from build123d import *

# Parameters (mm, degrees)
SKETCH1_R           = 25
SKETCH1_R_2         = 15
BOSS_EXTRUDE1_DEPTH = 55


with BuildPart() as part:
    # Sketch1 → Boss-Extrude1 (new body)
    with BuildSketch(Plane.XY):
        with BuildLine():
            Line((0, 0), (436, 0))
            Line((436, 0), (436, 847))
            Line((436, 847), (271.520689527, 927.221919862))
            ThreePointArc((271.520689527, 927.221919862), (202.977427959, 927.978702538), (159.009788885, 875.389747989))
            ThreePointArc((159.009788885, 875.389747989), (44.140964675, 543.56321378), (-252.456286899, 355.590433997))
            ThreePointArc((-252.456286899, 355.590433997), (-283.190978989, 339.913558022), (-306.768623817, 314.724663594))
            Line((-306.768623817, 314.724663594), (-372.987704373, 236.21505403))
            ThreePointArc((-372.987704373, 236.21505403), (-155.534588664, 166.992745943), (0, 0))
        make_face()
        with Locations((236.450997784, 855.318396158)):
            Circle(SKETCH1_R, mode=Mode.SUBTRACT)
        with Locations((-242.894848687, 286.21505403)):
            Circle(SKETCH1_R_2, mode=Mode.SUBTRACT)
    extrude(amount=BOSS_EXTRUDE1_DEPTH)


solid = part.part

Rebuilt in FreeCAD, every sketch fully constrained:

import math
import FreeCAD as App
import Part
import Sketcher
Q = App.Units.Quantity

doc = App.newDocument("Part")
params = doc.addObject("Spreadsheet::Sheet", "Params")
for row, (alias, value) in enumerate([
    ("sketch1_diameter", "30 mm"),
    ("sketch1_diameter2", "50 mm"),
    ("sketch1_radius", "80 mm"),
    ("sketch1_radius2", "532 mm"),
    ("sketch1_radius3", "100 mm"),
    ("pad1_length", "55 mm"),
], start=1):
    params.set(f"A{row}", alias)
    params.set(f"B{row}", "=" + value)
    params.setAlias(f"B{row}", alias)

body = doc.addObject("PartDesign::Body", "Body")

# Sketch on XY plane
sketch1 = body.newObject("Sketcher::SketchObject", "Sketch")
sketch1.AttachmentSupport = (doc.getObject("XY_Plane"), [""])
sketch1.MapMode = "FlatFace"
sketch1.addGeometry([
    Part.LineSegment(App.Vector(0, 0, 0), App.Vector(436, 0, 0)),  # 0
    Part.LineSegment(App.Vector(436, 0, 0), App.Vector(436, 847, 0)),  # 1
    Part.LineSegment(App.Vector(436, 847, 0), App.Vector(272, 927, 0)),  # 2
    Part.ArcOfCircle(Part.Circle(App.Vector(236, 855, 0), App.Vector(0, 0, 1), 80), math.radians(64), math.radians(165)),  # 3
    Part.ArcOfCircle(Part.Circle(App.Vector(-373, 874, 0), App.Vector(0, 0, 1), 532), math.radians(-77), math.radians(0)),  # 4
    Part.ArcOfCircle(Part.Circle(App.Vector(-223, 260, 0), App.Vector(0, 0, 1), 100), math.radians(107), math.radians(147)),  # 5
    Part.LineSegment(App.Vector(-307, 315, 0), App.Vector(-373, 236, 0)),  # 6
    Part.ArcOfCircle(Part.Circle(App.Vector(-396, -213, 0), App.Vector(0, 0, 1), 450), math.radians(28), math.radians(87)),  # 7
    Part.Circle(App.Vector(-243, 286, 0), App.Vector(0, 0, 1), 15),  # 8
    Part.Circle(App.Vector(236, 855, 0), App.Vector(0, 0, 1), 25),  # 9
], False)
sketch1.addConstraint([
    Sketcher.Constraint("Coincident", 0, 2, 1, 1),
    Sketcher.Constraint("Coincident", 1, 2, 2, 1),
    Sketcher.Constraint("Tangent", 2, 2, 3, 1),
    Sketcher.Constraint("Coincident", 3, 2, 4, 2),
    Sketcher.Constraint("Coincident", 4, 1, 5, 1),
    Sketcher.Constraint("Coincident", 5, 2, 6, 1),
    Sketcher.Constraint("Coincident", 6, 2, 7, 2),
    Sketcher.Constraint("Coincident", 7, 1, 0, 1),
    Sketcher.Constraint("Horizontal", 0),
    Sketcher.Constraint("Vertical", 1),
    Sketcher.Constraint("Coincident", 9, 3, 3, 3),
    Sketcher.Constraint("PointOnObject", 0, 2, -1),
    Sketcher.Constraint("Vertical", 4, 3, 6, 2),
    Sketcher.Constraint("Diameter", 8, Q("30 mm")),
    Sketcher.Constraint("Diameter", 9, Q("50 mm")),
    Sketcher.Constraint("Radius", 3, Q("80 mm")),
    Sketcher.Constraint("Radius", 4, Q("532 mm")),
    Sketcher.Constraint("Radius", 5, Q("100 mm")),
    Sketcher.Constraint("Radius", 7, Q("450 mm")),
    Sketcher.Constraint("DistanceX", 0, 1, 0, 2, Q("436 mm")),
    Sketcher.Constraint("DistanceY", 1, 1, 1, 2, Q("847 mm")),
    Sketcher.Constraint("Angle", 2, Q("154 deg")),
    Sketcher.Constraint("Distance", 2, Q("183 mm")),
    Sketcher.Constraint("DistanceX", -1, 1, 0, 2, Q("436 mm")),
    Sketcher.Constraint("DistanceY", 6, 2, 8, 3, Q("50 mm")),
    Sketcher.Constraint("DistanceY", -1, 1, 4, 3, Q("873.756602 mm")),
    Sketcher.Constraint("DistanceX", 3, 2, 2, 2, Q("112.510901 mm")),
    Sketcher.Constraint("Distance", 6, Q("102.706988 mm")),
    Sketcher.Constraint("DistanceY", -1, 1, 5, 3, Q("260.006532 mm")),
    Sketcher.Constraint("DistanceY", 7, 3, -1, 1, Q("213.180672 mm")),
    Sketcher.Constraint("DistanceX", 8, 3, -1, 1, Q("242.894849 mm")),
    Sketcher.Constraint("DistanceX", 4, 3, 5, 3, Q("149.920491 mm")),
])
sketch1.setExpression("Constraints[13]", "Params.sketch1_diameter")
sketch1.setExpression("Constraints[14]", "Params.sketch1_diameter2")
sketch1.setExpression("Constraints[15]", "Params.sketch1_radius")
sketch1.setExpression("Constraints[16]", "Params.sketch1_radius2")
sketch1.setExpression("Constraints[17]", "Params.sketch1_radius3")
pad1 = body.newObject("PartDesign::Pad", "Pad")
pad1.Profile = sketch1
pad1.setExpression("Length", "Params.pad1_length")

doc.recompute()
